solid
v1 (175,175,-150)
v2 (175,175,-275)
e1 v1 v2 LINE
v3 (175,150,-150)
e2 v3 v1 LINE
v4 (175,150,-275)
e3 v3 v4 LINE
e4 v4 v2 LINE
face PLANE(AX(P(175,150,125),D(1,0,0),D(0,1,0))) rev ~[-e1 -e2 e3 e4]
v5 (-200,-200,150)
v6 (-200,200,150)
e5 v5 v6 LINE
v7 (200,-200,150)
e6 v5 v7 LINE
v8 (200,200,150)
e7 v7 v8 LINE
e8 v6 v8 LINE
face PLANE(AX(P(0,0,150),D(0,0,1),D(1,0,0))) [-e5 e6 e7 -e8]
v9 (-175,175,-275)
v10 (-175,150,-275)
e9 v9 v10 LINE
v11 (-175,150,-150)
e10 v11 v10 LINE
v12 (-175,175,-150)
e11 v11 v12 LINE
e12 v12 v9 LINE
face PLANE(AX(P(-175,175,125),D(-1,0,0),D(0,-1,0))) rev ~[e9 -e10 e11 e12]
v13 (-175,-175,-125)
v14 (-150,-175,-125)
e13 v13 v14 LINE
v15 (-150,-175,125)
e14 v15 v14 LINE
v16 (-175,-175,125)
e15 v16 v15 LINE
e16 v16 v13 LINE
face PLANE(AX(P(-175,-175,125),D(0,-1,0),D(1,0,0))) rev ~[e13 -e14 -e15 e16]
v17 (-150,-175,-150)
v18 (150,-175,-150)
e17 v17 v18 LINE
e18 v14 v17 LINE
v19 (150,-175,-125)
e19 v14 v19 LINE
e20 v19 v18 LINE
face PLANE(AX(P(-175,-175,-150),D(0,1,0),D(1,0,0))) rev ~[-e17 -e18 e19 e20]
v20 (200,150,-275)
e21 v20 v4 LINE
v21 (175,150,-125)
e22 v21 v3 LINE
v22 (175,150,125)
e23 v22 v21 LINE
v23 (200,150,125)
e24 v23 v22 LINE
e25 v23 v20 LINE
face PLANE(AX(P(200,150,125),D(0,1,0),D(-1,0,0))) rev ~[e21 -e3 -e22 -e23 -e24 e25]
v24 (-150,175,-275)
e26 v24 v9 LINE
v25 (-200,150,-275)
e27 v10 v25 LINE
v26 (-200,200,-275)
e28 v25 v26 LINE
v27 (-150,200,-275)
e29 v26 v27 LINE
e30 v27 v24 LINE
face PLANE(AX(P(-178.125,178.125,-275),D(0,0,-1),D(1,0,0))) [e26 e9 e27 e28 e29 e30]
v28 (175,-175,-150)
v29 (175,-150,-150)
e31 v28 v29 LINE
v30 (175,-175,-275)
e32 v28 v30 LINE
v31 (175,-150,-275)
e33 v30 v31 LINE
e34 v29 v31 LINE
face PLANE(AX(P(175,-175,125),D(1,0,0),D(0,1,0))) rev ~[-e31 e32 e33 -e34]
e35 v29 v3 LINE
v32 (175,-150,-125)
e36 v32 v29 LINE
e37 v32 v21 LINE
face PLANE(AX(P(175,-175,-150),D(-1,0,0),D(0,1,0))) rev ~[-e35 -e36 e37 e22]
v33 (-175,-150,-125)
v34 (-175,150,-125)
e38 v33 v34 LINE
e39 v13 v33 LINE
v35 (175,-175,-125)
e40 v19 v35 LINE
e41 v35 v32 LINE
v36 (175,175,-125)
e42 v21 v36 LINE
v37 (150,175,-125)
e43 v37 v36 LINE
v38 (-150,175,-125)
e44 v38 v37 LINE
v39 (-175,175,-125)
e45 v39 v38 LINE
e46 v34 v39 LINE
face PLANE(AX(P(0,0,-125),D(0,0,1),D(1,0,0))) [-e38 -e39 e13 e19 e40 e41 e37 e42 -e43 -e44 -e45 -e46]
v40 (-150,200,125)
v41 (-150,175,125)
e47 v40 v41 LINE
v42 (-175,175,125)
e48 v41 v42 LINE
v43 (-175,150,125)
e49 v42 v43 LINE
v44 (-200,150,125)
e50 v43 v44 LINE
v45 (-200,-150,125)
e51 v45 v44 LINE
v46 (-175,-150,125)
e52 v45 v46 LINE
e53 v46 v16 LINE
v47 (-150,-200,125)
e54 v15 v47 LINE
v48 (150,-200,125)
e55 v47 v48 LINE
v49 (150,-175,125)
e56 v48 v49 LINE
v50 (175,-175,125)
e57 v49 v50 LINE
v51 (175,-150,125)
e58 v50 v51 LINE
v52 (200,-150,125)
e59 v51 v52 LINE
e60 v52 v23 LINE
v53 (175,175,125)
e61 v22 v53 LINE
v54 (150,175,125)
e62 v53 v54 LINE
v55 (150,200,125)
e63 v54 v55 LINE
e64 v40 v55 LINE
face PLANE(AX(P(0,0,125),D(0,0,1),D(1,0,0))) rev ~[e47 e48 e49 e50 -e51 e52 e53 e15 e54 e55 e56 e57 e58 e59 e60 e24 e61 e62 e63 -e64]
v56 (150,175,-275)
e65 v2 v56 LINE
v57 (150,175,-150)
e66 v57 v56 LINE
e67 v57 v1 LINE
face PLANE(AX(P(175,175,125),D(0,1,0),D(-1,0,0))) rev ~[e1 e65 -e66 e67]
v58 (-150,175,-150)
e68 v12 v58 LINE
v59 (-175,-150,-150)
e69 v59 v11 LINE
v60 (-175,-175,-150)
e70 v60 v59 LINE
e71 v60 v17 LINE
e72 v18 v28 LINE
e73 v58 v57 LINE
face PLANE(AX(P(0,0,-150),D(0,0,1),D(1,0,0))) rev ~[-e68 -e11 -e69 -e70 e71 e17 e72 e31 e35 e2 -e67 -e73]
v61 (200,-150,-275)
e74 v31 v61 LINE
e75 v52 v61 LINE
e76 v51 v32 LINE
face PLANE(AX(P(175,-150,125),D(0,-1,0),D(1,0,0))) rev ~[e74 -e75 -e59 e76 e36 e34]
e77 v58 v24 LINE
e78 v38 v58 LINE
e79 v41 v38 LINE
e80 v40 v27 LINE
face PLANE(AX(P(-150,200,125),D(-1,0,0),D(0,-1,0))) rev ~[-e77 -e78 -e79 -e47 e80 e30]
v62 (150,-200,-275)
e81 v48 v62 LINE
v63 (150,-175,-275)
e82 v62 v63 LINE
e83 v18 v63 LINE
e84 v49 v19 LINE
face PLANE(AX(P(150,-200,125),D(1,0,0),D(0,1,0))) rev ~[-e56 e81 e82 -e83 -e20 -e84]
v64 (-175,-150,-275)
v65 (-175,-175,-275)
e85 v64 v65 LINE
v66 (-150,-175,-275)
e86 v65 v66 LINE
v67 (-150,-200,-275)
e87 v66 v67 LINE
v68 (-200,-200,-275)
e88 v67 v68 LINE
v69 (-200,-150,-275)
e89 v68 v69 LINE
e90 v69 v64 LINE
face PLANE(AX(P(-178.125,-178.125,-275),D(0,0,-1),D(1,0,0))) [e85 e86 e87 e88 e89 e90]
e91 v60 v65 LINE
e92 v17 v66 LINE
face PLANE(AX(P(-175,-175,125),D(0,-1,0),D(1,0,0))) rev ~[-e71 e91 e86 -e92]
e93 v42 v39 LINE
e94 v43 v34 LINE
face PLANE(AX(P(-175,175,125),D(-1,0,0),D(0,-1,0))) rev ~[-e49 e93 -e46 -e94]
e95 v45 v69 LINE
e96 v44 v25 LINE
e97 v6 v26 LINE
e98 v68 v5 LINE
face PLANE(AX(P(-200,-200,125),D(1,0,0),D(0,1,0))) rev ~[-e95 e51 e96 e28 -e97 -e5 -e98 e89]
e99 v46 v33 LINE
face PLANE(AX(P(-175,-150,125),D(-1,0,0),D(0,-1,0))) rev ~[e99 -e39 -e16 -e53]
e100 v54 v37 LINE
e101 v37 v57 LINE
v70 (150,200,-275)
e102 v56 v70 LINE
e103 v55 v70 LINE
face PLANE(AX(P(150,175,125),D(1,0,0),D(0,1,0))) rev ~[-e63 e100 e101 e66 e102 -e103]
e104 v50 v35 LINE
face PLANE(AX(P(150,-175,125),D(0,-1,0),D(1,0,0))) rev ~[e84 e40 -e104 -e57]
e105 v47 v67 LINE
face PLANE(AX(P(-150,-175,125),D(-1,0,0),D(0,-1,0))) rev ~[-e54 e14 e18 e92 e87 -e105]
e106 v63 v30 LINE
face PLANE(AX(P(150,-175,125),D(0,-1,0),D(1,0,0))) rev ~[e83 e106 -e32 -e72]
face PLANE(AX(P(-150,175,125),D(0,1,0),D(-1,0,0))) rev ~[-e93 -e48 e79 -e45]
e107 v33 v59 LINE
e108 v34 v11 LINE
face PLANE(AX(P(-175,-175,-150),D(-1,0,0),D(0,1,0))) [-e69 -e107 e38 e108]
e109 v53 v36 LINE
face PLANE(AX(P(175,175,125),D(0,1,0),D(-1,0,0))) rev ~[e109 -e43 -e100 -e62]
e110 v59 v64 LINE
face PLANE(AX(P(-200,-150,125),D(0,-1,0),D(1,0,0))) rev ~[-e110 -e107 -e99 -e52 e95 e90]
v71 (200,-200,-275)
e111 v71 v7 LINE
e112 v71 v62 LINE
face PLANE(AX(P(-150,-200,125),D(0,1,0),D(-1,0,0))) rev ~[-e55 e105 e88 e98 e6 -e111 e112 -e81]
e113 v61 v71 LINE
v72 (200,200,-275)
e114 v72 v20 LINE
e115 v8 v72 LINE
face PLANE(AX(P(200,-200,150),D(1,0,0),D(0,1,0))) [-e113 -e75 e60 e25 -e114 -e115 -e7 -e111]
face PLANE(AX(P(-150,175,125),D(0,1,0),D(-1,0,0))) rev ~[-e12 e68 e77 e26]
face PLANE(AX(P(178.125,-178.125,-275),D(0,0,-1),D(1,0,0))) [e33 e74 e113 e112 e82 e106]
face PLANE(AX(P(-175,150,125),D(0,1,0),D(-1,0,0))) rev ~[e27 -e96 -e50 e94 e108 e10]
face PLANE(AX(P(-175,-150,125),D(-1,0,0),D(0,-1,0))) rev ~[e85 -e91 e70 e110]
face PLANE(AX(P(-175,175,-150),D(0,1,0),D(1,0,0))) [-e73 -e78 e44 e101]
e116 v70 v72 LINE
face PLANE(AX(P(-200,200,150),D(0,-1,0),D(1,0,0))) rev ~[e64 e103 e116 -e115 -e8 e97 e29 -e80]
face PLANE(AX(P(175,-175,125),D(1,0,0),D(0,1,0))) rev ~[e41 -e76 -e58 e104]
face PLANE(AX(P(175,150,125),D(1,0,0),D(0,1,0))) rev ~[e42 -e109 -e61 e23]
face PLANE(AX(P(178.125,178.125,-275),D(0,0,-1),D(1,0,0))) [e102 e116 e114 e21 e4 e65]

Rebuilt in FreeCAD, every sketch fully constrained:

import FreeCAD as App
import Part
import Sketcher
from FreeCAD import Vector


def add_polygon(sketch, points):
    """Adds a closed chain of lines whose ends are joined by coincident constraints."""
    first, n = sketch.GeometryCount, len(points)
    for a, b in zip(points, points[1:] + points[:1]):
        sketch.addGeometry(Part.LineSegment(App.Vector(*a, 0), App.Vector(*b, 0)), False)
    for i in range(n):
        sketch.addConstraint(Sketcher.Constraint("Coincident", first + i, 2, first + (i + 1) % n, 1))

doc = App.newDocument("Part")
body = doc.addObject("PartDesign::Body", "Body")

sketch1 = body.newObject("Sketcher::SketchObject", "Sketch")
sketch1.AttachmentSupport = (doc.getObject("XY_Plane"), [""])
sketch1.MapMode = "FlatFace"
sketch1.AttachmentOffset = App.Placement(Vector(0, 0, 150), App.Rotation())
add_polygon(sketch1, [(-200, 200), (-200, -200), (200, -200), (200, 200)])
sketch1.addConstraint([
    Sketcher.Constraint("Vertical", 0),
    Sketcher.Constraint("Horizontal", 1),
    Sketcher.Constraint("Vertical", 2),
    Sketcher.Constraint("Horizontal", 3),
    Sketcher.Constraint("Symmetric", 0, 2, 2, 2, -1, 1),
    Sketcher.Constraint("Equal", 3, 0),
    Sketcher.Constraint("DistanceX", 1, 1, 1, 2, 400.0),
])
pad1 = body.newObject("PartDesign::Pad", "Pad")
pad1.Profile = sketch1
pad1.Length = 25
pad1.Reversed = True

sketch2 = body.newObject("Sketcher::SketchObject", "Sketch001")
sketch2.AttachmentSupport = (doc.getObject("XY_Plane"), [""])
sketch2.MapMode = "FlatFace"
sketch2.AttachmentOffset = App.Placement(Vector(0, 0, 125), App.Rotation())
add_polygon(sketch2, [(-200, -200), (-200, -150), (-175, -150), (-175, -175), (-150, -175), (-150, -200)])
add_polygon(sketch2, [(150, -175), (175, -175), (175, -150), (200, -150), (200, -200), (150, -200)])
add_polygon(sketch2, [(-150, 175), (-175, 175), (-175, 150), (-200, 150), (-200, 200), (-150, 200)])
add_polygon(sketch2, [(175, 150), (175, 175), (150, 175), (150, 200), (200, 200), (200, 150)])
sketch2.addConstraint([
    Sketcher.Constraint("Vertical", 0),
    Sketcher.Constraint("Horizontal", 1),
    Sketcher.Constraint("Vertical", 2),
    Sketcher.Constraint("Horizontal", 3),
    Sketcher.Constraint("Vertical", 4),
    Sketcher.Constraint("Horizontal", 5),
    Sketcher.Constraint("Horizontal", 6),
    Sketcher.Constraint("Vertical", 7),
    Sketcher.Constraint("Horizontal", 8),
    Sketcher.Constraint("Vertical", 9),
    Sketcher.Constraint("Horizontal", 10),
    Sketcher.Constraint("Vertical", 11),
    Sketcher.Constraint("Horizontal", 12),
    Sketcher.Constraint("Vertical", 13),
    Sketcher.Constraint("Horizontal", 14),
    Sketcher.Constraint("Vertical", 15),
    Sketcher.Constraint("Horizontal", 16),
    Sketcher.Constraint("Vertical", 17),
    Sketcher.Constraint("Vertical", 18),
    Sketcher.Constraint("Horizontal", 19),
    Sketcher.Constraint("Vertical", 20),
    Sketcher.Constraint("Horizontal", 21),
    Sketcher.Constraint("Vertical", 22),
    Sketcher.Constraint("Horizontal", 23),
    Sketcher.Constraint("Symmetric", 6, 2, 12, 2, -1, 1),
    Sketcher.Constraint("Symmetric", 8, 2, 14, 2, -1, 1),
    Sketcher.Constraint("Symmetric", 10, 2, 16, 2, -1, 1),
    Sketcher.Constraint("Symmetric", 2, 2, 18, 2, -1, 1),
    Sketcher.Constraint("Symmetric", 4, 2, 20, 2, -1, 1),
    Sketcher.Constraint("Symmetric", 0, 2, 22, 2, -1, 1),
    Sketcher.Constraint("Symmetric", 2, 2, 6, 2, -2),
    Sketcher.Constraint("Symmetric", 0, 2, 8, 2, -2),
    Sketcher.Constraint("Symmetric", 4, 2, 10, 2, -2),
    Sketcher.Constraint("Equal", 1, 3),
    Sketcher.Constraint("Equal", 21, 0),
    Sketcher.Constraint("Equal", 23, 2),
    Sketcher.Constraint("DistanceX", 1, 1, 1, 2, 25.0),
    Sketcher.Constraint("DistanceX", 0, 2, -1, 1, 200.0),
    Sketcher.Constraint("DistanceY", 0, 2, -1, 1, 150.0),
])
pad2 = body.newObject("PartDesign::Pad", "Pad001")
pad2.Profile = sketch2
pad2.Length = 400
pad2.Reversed = True

sketch3 = body.newObject("Sketcher::SketchObject", "Sketch002")
sketch3.AttachmentSupport = (doc.getObject("XY_Plane"), [""])
sketch3.MapMode = "FlatFace"
sketch3.AttachmentOffset = App.Placement(Vector(0, 0, -150), App.Rotation())
add_polygon(sketch3, [(-175, 175), (-175, -175), (175, -175), (175, 175)])
sketch3.addConstraint([
    Sketcher.Constraint("Vertical", 0),
    Sketcher.Constraint("Horizontal", 1),
    Sketcher.Constraint("Vertical", 2),
    Sketcher.Constraint("Horizontal", 3),
    Sketcher.Constraint("Symmetric", 0, 2, 2, 2, -1, 1),
    Sketcher.Constraint("Equal", 3, 0),
    Sketcher.Constraint("DistanceX", 1, 1, 1, 2, 350.0),
])
pad3 = body.newObject("PartDesign::Pad", "Pad002")
pad3.Profile = sketch3
pad3.Length = 25

doc.recompute()
